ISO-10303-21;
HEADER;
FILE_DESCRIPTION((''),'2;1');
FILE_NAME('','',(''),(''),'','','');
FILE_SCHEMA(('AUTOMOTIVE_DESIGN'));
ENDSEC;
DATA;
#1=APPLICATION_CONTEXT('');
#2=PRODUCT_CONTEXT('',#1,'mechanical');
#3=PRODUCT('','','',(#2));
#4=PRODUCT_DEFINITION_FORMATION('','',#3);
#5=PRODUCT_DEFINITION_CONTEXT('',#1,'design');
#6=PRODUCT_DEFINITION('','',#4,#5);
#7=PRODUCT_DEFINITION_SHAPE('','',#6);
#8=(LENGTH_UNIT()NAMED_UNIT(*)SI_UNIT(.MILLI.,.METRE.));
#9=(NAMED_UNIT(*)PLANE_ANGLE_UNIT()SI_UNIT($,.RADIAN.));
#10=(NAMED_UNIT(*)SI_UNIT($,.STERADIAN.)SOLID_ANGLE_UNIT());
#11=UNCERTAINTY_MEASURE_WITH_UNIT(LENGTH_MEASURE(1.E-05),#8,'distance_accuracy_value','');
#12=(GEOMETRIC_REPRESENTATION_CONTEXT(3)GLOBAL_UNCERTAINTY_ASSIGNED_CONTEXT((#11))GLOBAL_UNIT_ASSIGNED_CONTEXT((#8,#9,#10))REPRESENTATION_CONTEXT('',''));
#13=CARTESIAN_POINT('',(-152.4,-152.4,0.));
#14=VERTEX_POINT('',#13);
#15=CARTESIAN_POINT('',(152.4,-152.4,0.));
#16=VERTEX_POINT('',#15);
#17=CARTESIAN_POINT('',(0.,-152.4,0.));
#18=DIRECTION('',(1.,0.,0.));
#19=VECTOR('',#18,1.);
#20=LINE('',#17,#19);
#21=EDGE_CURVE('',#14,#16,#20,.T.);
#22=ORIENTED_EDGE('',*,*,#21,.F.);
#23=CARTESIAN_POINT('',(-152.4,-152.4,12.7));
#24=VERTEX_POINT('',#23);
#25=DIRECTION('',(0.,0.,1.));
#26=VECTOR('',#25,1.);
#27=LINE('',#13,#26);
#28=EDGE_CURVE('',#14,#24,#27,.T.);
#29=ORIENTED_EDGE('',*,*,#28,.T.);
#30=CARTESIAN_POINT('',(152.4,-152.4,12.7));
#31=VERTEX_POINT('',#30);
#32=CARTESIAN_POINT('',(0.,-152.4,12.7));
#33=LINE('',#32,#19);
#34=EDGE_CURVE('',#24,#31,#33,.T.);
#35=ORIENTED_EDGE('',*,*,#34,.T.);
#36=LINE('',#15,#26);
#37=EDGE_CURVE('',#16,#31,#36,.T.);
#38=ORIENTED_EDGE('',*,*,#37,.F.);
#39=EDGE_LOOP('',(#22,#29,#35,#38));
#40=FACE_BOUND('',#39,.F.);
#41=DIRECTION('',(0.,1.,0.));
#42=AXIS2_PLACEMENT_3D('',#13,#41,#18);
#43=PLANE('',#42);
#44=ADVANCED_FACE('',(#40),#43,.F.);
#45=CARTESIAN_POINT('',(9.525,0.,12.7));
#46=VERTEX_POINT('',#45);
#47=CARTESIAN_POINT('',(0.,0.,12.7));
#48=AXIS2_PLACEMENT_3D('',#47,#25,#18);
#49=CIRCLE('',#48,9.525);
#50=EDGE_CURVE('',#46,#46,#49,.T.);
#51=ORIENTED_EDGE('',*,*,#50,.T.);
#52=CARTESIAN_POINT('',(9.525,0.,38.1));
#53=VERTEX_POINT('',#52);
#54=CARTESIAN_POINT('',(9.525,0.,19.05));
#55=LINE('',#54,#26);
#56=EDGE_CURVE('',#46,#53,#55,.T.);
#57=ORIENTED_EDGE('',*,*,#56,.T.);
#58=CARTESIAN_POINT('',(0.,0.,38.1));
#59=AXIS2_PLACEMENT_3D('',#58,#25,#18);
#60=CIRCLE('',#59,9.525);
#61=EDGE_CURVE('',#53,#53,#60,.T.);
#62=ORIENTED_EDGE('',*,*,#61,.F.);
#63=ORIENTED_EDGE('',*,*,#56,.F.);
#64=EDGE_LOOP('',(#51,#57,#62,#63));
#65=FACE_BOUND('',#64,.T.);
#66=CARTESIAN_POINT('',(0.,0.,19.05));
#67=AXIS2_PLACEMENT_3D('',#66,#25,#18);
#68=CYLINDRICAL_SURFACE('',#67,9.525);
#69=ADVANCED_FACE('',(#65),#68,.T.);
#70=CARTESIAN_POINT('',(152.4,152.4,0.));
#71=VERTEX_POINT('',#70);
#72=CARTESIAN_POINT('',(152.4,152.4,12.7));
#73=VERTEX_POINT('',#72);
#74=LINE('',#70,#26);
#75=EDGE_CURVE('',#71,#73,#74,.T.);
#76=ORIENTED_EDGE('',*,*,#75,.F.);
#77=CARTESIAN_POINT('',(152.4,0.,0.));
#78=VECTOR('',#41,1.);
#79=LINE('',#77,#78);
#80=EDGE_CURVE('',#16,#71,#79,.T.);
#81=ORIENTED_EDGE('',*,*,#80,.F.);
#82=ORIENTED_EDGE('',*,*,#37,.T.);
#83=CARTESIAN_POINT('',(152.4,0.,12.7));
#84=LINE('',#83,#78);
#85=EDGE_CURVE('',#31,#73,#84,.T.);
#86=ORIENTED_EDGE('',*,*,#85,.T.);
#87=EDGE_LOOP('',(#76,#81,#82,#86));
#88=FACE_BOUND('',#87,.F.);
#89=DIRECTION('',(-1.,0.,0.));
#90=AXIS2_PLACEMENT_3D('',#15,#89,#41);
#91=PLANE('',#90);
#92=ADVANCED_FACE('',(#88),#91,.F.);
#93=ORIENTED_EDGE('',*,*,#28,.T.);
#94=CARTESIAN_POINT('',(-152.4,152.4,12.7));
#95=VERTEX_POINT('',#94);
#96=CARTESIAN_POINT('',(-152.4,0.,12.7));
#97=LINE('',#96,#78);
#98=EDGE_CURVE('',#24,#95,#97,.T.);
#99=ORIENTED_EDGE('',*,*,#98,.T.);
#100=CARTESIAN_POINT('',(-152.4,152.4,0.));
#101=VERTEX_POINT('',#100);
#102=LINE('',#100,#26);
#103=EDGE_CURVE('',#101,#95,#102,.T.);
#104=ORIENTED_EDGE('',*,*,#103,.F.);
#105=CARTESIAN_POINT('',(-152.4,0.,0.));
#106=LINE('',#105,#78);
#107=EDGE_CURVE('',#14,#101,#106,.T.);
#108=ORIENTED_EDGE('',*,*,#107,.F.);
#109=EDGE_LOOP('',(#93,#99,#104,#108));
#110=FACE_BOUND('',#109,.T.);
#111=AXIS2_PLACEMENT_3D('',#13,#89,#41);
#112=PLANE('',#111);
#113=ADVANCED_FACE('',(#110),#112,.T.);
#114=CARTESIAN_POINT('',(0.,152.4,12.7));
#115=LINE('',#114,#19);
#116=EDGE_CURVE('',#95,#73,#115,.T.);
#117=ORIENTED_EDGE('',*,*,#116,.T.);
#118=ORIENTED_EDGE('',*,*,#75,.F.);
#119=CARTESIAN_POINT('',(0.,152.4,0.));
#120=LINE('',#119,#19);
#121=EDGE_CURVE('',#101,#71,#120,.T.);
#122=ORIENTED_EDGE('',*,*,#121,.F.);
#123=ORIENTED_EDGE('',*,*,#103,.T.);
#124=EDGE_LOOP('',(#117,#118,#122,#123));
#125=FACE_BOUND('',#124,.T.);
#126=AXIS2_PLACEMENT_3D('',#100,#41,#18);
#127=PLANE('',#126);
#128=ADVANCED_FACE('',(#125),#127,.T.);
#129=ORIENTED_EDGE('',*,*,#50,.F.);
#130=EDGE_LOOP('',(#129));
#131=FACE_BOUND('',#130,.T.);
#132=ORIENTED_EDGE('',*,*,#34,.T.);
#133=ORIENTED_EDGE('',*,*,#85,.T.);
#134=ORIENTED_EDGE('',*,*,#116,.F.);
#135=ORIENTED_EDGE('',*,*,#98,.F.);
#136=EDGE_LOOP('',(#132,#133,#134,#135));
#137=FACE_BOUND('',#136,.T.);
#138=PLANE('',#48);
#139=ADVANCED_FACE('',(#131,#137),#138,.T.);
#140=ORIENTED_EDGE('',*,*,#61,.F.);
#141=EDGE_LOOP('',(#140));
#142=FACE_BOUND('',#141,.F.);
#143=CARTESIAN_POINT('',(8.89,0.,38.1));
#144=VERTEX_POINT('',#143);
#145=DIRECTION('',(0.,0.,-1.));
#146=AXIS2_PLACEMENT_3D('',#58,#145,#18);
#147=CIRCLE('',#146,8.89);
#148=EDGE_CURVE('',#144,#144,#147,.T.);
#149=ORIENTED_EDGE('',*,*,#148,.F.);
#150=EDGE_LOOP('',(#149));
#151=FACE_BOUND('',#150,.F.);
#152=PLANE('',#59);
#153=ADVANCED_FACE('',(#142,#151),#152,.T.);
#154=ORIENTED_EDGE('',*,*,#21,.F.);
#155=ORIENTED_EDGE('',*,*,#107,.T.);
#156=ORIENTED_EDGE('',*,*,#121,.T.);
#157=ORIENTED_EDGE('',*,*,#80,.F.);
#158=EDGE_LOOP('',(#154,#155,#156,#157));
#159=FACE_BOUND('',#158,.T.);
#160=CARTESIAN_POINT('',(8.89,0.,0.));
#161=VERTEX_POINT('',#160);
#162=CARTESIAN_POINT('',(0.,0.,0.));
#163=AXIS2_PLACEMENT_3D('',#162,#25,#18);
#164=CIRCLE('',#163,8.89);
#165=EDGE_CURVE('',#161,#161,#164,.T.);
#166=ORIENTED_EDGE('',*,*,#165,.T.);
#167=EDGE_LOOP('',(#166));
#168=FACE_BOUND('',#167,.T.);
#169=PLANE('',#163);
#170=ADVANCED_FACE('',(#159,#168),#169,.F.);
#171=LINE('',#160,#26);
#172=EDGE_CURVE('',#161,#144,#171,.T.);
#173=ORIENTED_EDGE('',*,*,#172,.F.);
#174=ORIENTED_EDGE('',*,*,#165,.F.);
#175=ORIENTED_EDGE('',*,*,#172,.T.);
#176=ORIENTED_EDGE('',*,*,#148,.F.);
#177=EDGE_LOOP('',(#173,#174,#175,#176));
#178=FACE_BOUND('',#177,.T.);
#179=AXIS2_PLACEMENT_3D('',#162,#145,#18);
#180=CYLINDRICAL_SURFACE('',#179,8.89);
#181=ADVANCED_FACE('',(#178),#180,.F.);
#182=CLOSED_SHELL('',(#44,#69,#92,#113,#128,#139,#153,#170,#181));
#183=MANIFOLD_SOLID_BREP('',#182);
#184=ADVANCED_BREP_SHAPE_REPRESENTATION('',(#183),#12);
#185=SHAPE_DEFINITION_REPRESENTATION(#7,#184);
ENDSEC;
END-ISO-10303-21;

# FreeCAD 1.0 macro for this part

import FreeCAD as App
import Part
import Sketcher

V = App.Vector
Q = App.Units.Quantity

doc = App.newDocument("Part")
body = doc.addObject("PartDesign::Body", "Body")

# Sketch on XY plane
sketch1 = body.newObject("Sketcher::SketchObject", "Sketch")
sketch1.AttachmentSupport = (doc.getObject("XY_Plane"), [""])
sketch1.MapMode = "FlatFace"
sketch1.addGeometry([
    Part.LineSegment(V(-152, 152, 0), V(-152, -152, 0)),
    Part.LineSegment(V(-152, -152, 0), V(152, -152, 0)),
    Part.LineSegment(V(152, -152, 0), V(152, 152, 0)),
    Part.LineSegment(V(152, 152, 0), V(-152, 152, 0)),
], False)
sketch1.addConstraint([
    Sketcher.Constraint("Coincident", 0, 2, 1, 1),
    Sketcher.Constraint("Coincident", 1, 2, 2, 1),
    Sketcher.Constraint("Coincident", 2, 2, 3, 1),
    Sketcher.Constraint("Coincident", 3, 2, 0, 1),
    Sketcher.Constraint("Vertical", 0),
    Sketcher.Constraint("Horizontal", 1),
    Sketcher.Constraint("Vertical", 2),
    Sketcher.Constraint("Horizontal", 3),
    Sketcher.Constraint("Symmetric", 0, 2, 2, 2, -1, 1),
    Sketcher.Constraint("Equal", 3, 0),
    Sketcher.Constraint("DistanceX", 1, 1, 1, 2, Q("12 in")),
])
pad1 = body.newObject("PartDesign::Pad", "Pad")
pad1.Profile = sketch1
pad1.Length = Q("0.5 in")

# Sketch on XY plane
sketch2 = body.newObject("Sketcher::SketchObject", "Sketch001")
sketch2.AttachmentSupport = (doc.getObject("XY_Plane"), [""])
sketch2.MapMode = "FlatFace"
sketch2.addGeometry(Part.Circle(V(0, 0, 0), V(0, 0, 1), 10), False)
sketch2.addConstraint([
    Sketcher.Constraint("Coincident", 0, 3, -1, 1),
    Sketcher.Constraint("Diameter", 0, Q("0.75 in")),
])
pocket1 = body.newObject("PartDesign::Pocket", "Pocket")
pocket1.Profile = sketch2
pocket1.Length = Q("1 in")
pocket1.Midplane = True

# Sketch on XZ plane
sketch3 = body.newObject("Sketcher::SketchObject", "Sketch002")
sketch3.AttachmentSupport = (doc.getObject("XZ_Plane"), [""])
sketch3.MapMode = "FlatFace"
sketch3.addGeometry([
    Part.LineSegment(V(0, 38, 0), V(0, 0, 0)),
    Part.LineSegment(V(0, 0, 0), V(10, 0, 0)),
    Part.LineSegment(V(10, 0, 0), V(10, 38, 0)),
    Part.LineSegment(V(10, 38, 0), V(0, 38, 0)),
], False)
sketch3.addConstraint([
    Sketcher.Constraint("Coincident", 0, 2, 1, 1),
    Sketcher.Constraint("Coincident", 1, 2, 2, 1),
    Sketcher.Constraint("Coincident", 2, 2, 3, 1),
    Sketcher.Constraint("Coincident", 3, 2, 0, 1),
    Sketcher.Constraint("Vertical", 0),
    Sketcher.Constraint("Horizontal", 1),
    Sketcher.Constraint("Vertical", 2),
    Sketcher.Constraint("Horizontal", 3),
    Sketcher.Constraint("Coincident", 0, 2, -1, 1),
    Sketcher.Constraint("DistanceY", 0, 2, 0, 1, Q("1.5 in")),
    Sketcher.Constraint("DistanceX", 1, 1, 1, 2, Q("0.375 in")),
])
revolution = body.newObject("PartDesign::Revolution", "Revolution")
revolution.Profile = sketch3
revolution.ReferenceAxis = (sketch3, ["V_Axis"])
revolution.Angle = 360

# Sketch on XY plane
sketch4 = body.newObject("Sketcher::SketchObject", "Sketch003")
sketch4.AttachmentSupport = (doc.getObject("XY_Plane"), [""])
sketch4.MapMode = "FlatFace"
sketch4.addGeometry(Part.Circle(V(0, 0, 0), V(0, 0, 1), 9), False)
sketch4.addConstraint([
    Sketcher.Constraint("Coincident", 0, 3, -1, 1),
    Sketcher.Constraint("Diameter", 0, Q("0.7 in")),
])
pocket2 = body.newObject("PartDesign::Pocket", "Pocket001")
pocket2.Profile = sketch4
pocket2.Type = "ThroughAll"
pocket2.Reversed = True

doc.recompute()
